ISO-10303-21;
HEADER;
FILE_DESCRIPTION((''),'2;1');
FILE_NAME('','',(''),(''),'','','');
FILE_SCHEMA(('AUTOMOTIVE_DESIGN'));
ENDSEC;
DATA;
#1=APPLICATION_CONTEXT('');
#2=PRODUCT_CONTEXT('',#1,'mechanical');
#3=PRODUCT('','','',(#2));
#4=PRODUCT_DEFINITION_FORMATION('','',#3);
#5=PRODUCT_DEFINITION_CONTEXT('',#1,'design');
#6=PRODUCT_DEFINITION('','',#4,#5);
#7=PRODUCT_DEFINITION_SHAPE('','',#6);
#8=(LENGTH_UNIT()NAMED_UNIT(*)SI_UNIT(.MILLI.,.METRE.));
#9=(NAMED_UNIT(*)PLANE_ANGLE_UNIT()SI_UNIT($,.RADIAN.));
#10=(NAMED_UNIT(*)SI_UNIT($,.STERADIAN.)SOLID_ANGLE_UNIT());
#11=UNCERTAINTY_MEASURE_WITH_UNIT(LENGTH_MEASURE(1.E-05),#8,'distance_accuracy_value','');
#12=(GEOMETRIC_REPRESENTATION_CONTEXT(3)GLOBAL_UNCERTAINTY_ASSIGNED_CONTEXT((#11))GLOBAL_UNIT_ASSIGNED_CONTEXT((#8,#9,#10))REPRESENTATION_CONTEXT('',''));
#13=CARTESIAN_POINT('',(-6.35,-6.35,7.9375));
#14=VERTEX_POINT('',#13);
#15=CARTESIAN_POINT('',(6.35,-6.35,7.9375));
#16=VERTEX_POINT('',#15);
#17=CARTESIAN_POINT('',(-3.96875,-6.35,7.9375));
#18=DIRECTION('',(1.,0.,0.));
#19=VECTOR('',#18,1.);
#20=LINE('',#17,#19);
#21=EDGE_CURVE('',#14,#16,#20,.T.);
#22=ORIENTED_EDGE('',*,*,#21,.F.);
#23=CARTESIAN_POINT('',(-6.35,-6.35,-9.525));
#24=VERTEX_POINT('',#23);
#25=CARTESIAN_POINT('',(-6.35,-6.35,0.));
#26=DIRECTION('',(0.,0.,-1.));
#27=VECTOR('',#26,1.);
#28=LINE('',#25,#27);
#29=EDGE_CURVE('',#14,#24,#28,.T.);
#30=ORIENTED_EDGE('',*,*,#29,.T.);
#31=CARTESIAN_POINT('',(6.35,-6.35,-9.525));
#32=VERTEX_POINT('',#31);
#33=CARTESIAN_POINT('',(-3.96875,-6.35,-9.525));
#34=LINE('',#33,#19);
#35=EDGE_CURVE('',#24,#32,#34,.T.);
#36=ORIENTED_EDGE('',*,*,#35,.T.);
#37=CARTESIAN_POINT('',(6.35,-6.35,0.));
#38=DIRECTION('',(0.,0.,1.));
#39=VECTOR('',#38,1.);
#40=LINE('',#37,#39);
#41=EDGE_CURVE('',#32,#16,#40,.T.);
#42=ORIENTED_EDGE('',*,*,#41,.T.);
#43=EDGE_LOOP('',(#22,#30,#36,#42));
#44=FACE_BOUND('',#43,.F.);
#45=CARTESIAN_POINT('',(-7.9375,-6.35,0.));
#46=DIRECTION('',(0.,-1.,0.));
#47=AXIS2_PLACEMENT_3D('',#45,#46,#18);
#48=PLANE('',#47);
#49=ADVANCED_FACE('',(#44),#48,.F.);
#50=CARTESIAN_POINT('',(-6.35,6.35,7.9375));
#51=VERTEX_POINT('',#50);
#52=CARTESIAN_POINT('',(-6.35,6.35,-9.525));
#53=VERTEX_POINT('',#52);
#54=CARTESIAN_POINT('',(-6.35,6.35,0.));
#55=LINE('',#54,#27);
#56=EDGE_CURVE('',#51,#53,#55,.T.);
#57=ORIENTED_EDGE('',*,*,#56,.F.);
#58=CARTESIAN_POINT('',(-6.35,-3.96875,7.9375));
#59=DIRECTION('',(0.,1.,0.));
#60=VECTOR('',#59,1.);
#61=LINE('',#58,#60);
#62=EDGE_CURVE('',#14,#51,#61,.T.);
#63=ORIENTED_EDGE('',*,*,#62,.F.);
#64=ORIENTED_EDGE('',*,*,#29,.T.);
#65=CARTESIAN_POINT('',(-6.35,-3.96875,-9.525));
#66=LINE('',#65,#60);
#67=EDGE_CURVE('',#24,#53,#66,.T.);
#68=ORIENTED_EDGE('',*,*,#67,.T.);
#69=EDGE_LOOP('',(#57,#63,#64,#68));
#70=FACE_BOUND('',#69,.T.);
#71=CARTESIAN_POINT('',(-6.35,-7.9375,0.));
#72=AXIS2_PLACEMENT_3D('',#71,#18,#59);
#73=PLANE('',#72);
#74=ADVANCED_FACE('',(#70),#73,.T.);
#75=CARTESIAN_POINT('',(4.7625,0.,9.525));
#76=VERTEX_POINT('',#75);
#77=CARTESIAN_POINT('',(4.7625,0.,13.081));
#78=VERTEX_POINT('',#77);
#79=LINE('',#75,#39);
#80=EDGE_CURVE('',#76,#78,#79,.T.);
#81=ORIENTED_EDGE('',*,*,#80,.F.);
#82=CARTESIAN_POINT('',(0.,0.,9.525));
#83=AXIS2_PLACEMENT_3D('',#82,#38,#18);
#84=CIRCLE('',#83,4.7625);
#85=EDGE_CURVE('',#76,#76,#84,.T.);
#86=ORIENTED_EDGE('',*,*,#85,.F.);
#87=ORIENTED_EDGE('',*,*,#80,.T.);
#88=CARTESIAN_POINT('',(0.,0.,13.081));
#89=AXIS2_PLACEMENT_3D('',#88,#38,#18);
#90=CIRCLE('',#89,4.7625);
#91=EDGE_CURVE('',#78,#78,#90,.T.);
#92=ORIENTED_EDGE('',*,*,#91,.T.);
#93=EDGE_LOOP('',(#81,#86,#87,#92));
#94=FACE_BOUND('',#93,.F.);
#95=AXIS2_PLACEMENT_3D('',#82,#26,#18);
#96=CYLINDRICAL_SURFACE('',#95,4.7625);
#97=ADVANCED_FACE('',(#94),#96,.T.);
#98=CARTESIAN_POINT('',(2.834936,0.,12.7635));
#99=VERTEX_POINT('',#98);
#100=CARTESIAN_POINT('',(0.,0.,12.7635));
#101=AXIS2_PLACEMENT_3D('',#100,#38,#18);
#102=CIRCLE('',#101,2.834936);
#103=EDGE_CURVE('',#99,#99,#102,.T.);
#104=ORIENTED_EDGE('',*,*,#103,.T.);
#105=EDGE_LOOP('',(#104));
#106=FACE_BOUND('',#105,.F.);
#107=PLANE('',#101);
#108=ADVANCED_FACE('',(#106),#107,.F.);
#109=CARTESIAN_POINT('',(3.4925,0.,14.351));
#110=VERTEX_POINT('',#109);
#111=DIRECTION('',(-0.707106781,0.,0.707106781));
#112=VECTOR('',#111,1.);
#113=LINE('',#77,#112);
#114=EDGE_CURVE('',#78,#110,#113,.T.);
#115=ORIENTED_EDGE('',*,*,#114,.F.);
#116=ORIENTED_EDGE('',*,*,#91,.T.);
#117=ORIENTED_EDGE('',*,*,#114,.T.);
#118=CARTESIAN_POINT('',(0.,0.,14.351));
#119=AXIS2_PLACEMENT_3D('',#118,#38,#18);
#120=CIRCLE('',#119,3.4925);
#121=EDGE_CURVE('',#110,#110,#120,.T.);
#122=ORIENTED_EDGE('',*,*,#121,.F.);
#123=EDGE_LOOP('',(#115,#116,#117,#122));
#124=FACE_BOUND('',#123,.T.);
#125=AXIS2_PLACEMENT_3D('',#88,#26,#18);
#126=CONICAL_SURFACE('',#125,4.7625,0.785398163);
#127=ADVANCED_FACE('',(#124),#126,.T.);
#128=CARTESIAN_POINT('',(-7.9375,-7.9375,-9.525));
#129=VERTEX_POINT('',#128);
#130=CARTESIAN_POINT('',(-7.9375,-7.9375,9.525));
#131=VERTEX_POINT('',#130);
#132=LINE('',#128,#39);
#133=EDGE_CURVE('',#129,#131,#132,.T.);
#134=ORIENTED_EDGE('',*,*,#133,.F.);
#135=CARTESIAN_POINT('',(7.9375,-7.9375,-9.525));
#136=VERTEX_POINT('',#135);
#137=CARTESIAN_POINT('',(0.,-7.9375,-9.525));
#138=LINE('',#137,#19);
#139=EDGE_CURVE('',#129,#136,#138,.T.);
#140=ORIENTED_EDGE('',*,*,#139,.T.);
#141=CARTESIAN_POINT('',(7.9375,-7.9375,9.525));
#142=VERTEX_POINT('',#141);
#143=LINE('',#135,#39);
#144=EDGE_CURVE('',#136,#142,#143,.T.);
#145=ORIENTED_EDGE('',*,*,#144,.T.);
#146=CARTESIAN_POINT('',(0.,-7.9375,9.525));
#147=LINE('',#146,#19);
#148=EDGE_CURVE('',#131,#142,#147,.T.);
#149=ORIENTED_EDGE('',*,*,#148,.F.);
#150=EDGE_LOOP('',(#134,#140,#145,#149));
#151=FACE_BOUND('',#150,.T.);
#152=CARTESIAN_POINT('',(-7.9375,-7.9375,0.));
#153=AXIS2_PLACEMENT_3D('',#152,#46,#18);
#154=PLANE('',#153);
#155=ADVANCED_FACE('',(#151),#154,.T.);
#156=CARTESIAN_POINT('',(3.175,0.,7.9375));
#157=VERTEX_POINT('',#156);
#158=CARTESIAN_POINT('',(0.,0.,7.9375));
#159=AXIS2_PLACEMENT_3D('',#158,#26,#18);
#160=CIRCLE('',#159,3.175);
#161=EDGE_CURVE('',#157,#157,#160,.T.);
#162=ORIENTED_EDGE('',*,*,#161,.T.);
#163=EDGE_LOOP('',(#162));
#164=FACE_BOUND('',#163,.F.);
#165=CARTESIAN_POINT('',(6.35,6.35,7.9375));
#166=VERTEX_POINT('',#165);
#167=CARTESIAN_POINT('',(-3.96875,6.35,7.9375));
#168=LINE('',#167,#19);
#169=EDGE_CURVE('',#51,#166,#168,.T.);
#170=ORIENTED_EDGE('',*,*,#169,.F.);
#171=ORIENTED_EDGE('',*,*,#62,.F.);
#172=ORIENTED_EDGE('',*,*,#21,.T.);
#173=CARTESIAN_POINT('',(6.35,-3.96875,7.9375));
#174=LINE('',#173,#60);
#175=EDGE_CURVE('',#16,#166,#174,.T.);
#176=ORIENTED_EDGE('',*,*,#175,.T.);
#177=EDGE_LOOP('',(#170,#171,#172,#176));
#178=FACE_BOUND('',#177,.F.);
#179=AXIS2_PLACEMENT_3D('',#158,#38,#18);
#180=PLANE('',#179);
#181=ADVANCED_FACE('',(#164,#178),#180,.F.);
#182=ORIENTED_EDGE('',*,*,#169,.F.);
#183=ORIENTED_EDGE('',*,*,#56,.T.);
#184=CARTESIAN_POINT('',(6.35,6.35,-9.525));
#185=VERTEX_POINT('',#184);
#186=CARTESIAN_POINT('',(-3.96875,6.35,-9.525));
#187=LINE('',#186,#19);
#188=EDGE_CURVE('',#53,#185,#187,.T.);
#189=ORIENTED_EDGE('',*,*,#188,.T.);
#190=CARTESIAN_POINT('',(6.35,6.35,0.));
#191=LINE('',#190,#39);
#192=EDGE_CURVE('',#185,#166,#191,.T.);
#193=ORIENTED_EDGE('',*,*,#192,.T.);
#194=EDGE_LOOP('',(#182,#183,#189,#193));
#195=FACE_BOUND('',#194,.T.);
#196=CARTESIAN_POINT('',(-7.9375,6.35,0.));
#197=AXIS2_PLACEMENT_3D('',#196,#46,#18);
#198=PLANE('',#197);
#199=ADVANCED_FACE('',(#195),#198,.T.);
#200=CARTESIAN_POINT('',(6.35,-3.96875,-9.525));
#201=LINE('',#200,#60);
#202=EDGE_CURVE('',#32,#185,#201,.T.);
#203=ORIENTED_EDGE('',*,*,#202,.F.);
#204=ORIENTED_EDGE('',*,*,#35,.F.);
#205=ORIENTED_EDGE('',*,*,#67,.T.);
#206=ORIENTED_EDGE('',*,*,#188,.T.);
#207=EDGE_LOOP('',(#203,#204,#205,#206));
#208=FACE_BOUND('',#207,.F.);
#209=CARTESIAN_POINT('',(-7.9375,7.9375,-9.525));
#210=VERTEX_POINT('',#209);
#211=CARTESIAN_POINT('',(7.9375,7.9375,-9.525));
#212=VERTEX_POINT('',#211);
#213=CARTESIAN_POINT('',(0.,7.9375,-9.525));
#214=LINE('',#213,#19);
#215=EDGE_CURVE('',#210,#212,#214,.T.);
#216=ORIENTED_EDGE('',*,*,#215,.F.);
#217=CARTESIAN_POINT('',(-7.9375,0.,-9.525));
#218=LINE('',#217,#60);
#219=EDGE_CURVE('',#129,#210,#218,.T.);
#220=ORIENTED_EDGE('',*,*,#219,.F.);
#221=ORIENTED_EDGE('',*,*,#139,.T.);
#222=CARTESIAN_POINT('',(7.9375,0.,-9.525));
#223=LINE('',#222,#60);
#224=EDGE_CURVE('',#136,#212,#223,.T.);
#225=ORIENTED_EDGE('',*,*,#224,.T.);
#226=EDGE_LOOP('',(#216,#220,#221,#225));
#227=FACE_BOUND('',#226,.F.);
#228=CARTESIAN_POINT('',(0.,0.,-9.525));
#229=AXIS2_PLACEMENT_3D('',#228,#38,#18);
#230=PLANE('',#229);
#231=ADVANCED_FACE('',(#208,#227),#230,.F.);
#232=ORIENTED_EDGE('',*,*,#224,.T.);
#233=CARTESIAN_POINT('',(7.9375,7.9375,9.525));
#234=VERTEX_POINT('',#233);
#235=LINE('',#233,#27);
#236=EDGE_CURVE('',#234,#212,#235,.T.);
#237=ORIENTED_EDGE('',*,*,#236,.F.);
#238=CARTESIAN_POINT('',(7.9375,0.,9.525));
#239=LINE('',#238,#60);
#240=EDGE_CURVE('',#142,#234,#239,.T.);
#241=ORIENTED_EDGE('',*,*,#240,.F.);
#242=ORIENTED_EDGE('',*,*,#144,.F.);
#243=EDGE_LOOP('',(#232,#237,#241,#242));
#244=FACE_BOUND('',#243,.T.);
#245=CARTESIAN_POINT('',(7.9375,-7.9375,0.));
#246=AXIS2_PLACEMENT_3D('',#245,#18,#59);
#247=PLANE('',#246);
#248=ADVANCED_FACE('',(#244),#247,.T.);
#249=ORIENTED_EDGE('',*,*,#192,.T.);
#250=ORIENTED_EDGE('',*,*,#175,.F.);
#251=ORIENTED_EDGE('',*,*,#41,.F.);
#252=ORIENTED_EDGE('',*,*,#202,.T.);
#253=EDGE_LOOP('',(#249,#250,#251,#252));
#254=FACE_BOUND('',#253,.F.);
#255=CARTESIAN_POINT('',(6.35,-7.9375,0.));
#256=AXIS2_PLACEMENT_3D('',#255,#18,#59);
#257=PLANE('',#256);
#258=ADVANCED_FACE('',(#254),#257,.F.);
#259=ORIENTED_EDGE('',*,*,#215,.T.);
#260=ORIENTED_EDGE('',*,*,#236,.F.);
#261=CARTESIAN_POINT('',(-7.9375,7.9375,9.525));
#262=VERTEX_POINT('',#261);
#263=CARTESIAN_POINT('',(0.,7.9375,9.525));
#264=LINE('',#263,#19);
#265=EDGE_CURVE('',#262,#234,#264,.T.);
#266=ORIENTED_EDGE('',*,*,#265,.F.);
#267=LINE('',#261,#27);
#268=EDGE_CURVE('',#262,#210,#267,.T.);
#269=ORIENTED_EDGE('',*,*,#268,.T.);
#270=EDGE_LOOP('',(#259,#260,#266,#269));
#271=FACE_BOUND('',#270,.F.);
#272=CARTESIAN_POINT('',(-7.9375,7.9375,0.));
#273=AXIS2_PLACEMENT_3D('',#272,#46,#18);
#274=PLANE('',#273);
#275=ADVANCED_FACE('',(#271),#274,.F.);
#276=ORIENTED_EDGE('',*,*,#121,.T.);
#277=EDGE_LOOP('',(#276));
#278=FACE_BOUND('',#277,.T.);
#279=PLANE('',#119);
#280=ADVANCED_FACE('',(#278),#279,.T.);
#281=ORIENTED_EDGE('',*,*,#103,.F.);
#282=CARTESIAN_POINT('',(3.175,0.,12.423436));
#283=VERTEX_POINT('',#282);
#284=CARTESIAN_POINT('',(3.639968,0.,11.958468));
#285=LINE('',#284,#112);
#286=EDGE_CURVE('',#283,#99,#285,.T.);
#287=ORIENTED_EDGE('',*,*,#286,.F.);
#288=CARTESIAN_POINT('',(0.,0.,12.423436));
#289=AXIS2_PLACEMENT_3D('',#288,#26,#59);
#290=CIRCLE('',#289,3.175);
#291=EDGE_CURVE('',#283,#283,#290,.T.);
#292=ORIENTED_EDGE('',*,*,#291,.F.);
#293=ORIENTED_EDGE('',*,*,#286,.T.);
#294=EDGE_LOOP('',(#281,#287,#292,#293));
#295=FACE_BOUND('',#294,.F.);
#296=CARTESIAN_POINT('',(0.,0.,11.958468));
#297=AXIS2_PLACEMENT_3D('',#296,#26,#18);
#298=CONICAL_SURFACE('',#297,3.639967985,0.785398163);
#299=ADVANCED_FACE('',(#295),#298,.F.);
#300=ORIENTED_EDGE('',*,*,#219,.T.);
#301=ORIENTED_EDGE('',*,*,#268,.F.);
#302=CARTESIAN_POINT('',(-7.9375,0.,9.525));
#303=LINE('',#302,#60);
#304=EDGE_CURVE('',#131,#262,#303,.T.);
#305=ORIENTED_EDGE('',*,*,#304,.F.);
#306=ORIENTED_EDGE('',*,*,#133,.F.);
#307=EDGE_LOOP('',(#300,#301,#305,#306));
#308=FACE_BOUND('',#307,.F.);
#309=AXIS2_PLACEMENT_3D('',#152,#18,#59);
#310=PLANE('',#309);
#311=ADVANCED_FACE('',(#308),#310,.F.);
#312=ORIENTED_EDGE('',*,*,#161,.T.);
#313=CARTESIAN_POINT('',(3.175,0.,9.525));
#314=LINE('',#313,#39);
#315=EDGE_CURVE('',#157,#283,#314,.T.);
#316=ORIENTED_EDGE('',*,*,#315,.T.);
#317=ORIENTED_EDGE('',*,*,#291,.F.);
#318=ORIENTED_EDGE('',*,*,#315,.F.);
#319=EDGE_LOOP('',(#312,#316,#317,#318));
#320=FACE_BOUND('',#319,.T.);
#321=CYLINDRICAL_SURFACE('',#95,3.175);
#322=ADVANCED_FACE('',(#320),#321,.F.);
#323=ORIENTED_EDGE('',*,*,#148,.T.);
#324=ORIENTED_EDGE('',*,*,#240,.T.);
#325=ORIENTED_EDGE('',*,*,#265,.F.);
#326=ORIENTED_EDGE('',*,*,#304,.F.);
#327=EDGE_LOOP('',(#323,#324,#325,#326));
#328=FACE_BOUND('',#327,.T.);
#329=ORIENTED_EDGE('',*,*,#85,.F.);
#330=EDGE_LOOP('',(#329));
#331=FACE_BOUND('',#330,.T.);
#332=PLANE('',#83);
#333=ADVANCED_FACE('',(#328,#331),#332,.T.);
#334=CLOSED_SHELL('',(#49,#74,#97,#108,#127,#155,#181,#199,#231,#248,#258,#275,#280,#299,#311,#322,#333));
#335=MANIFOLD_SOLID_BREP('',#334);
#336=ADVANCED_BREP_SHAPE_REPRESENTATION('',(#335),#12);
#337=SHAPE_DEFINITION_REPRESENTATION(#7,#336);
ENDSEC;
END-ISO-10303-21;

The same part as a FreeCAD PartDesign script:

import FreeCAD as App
import Part
import Sketcher

V = App.Vector
Q = App.Units.Quantity


def edges_at(feature, points):
    """Names of the edges that pass closest to the given points."""
    edges = feature.Shape.Edges
    near = lambda p: min(range(len(edges)), key=lambda i: edges[i].distToShape(Part.Vertex(*p))[0])
    return sorted({f"Edge{near(p) + 1}" for p in points})


def faces_at(feature, points):
    """Names of the faces that lie closest to the given points."""
    faces = feature.Shape.Faces
    near = lambda p: min(range(len(faces)), key=lambda i: faces[i].distToShape(Part.Vertex(*p))[0])
    return sorted({f"Face{near(p) + 1}" for p in points})

doc = App.newDocument("Part")
body = doc.addObject("PartDesign::Body", "Body")

# Sketch on XY plane
sketch1 = doc.addObject("Sketcher::SketchObject", "Sketch")
body.addObject(sketch1)
sketch1.AttachmentSupport = (doc.XY_Plane, [""])
sketch1.MapMode = "FlatFace"
sketch1.addGeometry([
    Part.LineSegment(V(-8, 8, 0), V(-8, -8, 0)),
    Part.LineSegment(V(-8, -8, 0), V(8, -8, 0)),
    Part.LineSegment(V(8, -8, 0), V(8, 8, 0)),
    Part.LineSegment(V(8, 8, 0), V(-8, 8, 0)),
], False)
sketch1.addConstraint([
    Sketcher.Constraint("Coincident", 0, 2, 1, 1),
    Sketcher.Constraint("Coincident", 1, 2, 2, 1),
    Sketcher.Constraint("Coincident", 2, 2, 3, 1),
    Sketcher.Constraint("Coincident", 3, 2, 0, 1),
    Sketcher.Constraint("Vertical", 0),
    Sketcher.Constraint("Horizontal", 1),
    Sketcher.Constraint("Vertical", 2),
    Sketcher.Constraint("Horizontal", 3),
    Sketcher.Constraint("Symmetric", 0, 2, 2, 2, -1, 1),
    Sketcher.Constraint("Equal", 3, 0),
    Sketcher.Constraint("DistanceX", 1, 1, 1, 2, Q("0.625 in")),
])
pad1 = doc.addObject("PartDesign::Pad", "Pad")
body.addObject(pad1)
pad1.Profile = sketch1
pad1.Length = Q("0.75 in")
pad1.Midplane = True

# Sketch on XY plane
sketch2 = doc.addObject("Sketcher::SketchObject", "Sketch001")
body.addObject(sketch2)
sketch2.AttachmentSupport = (doc.XY_Plane, [""])
sketch2.MapMode = "FlatFace"
sketch2.AttachmentOffset = App.Placement(V(0, 0, 0.375 * 25.4), App.Rotation())
sketch2.addGeometry(Part.Circle(V(0, 0, 0), V(0, 0, 1), 4.8), False)
sketch2.addConstraint([
    Sketcher.Constraint("Coincident", 0, 3, -1, 1),
    Sketcher.Constraint("Diameter", 0, Q("0.375 in")),
])
pad2 = doc.addObject("PartDesign::Pad", "Pad001")
body.addObject(pad2)
pad2.Profile = sketch2
pad2.Length = Q("0.19 in")
doc.recompute()

chamfer = doc.addObject("PartDesign::Chamfer", "Chamfer")
body.addObject(chamfer)
chamfer.Base = (pad2, edges_at(pad2, [(-4.763, 0, 14.351)]))
chamfer.Size = Q("0.05 in")
doc.recompute()

thickness = doc.addObject("PartDesign::Thickness", "Thickness")
body.addObject(thickness)
thickness.Base = (chamfer, faces_at(chamfer, [(0, 0, -9.525)]))
thickness.Value = Q("0.0625 in")
thickness.Reversed = True
thickness.Join = "Intersection"

doc.recompute()
